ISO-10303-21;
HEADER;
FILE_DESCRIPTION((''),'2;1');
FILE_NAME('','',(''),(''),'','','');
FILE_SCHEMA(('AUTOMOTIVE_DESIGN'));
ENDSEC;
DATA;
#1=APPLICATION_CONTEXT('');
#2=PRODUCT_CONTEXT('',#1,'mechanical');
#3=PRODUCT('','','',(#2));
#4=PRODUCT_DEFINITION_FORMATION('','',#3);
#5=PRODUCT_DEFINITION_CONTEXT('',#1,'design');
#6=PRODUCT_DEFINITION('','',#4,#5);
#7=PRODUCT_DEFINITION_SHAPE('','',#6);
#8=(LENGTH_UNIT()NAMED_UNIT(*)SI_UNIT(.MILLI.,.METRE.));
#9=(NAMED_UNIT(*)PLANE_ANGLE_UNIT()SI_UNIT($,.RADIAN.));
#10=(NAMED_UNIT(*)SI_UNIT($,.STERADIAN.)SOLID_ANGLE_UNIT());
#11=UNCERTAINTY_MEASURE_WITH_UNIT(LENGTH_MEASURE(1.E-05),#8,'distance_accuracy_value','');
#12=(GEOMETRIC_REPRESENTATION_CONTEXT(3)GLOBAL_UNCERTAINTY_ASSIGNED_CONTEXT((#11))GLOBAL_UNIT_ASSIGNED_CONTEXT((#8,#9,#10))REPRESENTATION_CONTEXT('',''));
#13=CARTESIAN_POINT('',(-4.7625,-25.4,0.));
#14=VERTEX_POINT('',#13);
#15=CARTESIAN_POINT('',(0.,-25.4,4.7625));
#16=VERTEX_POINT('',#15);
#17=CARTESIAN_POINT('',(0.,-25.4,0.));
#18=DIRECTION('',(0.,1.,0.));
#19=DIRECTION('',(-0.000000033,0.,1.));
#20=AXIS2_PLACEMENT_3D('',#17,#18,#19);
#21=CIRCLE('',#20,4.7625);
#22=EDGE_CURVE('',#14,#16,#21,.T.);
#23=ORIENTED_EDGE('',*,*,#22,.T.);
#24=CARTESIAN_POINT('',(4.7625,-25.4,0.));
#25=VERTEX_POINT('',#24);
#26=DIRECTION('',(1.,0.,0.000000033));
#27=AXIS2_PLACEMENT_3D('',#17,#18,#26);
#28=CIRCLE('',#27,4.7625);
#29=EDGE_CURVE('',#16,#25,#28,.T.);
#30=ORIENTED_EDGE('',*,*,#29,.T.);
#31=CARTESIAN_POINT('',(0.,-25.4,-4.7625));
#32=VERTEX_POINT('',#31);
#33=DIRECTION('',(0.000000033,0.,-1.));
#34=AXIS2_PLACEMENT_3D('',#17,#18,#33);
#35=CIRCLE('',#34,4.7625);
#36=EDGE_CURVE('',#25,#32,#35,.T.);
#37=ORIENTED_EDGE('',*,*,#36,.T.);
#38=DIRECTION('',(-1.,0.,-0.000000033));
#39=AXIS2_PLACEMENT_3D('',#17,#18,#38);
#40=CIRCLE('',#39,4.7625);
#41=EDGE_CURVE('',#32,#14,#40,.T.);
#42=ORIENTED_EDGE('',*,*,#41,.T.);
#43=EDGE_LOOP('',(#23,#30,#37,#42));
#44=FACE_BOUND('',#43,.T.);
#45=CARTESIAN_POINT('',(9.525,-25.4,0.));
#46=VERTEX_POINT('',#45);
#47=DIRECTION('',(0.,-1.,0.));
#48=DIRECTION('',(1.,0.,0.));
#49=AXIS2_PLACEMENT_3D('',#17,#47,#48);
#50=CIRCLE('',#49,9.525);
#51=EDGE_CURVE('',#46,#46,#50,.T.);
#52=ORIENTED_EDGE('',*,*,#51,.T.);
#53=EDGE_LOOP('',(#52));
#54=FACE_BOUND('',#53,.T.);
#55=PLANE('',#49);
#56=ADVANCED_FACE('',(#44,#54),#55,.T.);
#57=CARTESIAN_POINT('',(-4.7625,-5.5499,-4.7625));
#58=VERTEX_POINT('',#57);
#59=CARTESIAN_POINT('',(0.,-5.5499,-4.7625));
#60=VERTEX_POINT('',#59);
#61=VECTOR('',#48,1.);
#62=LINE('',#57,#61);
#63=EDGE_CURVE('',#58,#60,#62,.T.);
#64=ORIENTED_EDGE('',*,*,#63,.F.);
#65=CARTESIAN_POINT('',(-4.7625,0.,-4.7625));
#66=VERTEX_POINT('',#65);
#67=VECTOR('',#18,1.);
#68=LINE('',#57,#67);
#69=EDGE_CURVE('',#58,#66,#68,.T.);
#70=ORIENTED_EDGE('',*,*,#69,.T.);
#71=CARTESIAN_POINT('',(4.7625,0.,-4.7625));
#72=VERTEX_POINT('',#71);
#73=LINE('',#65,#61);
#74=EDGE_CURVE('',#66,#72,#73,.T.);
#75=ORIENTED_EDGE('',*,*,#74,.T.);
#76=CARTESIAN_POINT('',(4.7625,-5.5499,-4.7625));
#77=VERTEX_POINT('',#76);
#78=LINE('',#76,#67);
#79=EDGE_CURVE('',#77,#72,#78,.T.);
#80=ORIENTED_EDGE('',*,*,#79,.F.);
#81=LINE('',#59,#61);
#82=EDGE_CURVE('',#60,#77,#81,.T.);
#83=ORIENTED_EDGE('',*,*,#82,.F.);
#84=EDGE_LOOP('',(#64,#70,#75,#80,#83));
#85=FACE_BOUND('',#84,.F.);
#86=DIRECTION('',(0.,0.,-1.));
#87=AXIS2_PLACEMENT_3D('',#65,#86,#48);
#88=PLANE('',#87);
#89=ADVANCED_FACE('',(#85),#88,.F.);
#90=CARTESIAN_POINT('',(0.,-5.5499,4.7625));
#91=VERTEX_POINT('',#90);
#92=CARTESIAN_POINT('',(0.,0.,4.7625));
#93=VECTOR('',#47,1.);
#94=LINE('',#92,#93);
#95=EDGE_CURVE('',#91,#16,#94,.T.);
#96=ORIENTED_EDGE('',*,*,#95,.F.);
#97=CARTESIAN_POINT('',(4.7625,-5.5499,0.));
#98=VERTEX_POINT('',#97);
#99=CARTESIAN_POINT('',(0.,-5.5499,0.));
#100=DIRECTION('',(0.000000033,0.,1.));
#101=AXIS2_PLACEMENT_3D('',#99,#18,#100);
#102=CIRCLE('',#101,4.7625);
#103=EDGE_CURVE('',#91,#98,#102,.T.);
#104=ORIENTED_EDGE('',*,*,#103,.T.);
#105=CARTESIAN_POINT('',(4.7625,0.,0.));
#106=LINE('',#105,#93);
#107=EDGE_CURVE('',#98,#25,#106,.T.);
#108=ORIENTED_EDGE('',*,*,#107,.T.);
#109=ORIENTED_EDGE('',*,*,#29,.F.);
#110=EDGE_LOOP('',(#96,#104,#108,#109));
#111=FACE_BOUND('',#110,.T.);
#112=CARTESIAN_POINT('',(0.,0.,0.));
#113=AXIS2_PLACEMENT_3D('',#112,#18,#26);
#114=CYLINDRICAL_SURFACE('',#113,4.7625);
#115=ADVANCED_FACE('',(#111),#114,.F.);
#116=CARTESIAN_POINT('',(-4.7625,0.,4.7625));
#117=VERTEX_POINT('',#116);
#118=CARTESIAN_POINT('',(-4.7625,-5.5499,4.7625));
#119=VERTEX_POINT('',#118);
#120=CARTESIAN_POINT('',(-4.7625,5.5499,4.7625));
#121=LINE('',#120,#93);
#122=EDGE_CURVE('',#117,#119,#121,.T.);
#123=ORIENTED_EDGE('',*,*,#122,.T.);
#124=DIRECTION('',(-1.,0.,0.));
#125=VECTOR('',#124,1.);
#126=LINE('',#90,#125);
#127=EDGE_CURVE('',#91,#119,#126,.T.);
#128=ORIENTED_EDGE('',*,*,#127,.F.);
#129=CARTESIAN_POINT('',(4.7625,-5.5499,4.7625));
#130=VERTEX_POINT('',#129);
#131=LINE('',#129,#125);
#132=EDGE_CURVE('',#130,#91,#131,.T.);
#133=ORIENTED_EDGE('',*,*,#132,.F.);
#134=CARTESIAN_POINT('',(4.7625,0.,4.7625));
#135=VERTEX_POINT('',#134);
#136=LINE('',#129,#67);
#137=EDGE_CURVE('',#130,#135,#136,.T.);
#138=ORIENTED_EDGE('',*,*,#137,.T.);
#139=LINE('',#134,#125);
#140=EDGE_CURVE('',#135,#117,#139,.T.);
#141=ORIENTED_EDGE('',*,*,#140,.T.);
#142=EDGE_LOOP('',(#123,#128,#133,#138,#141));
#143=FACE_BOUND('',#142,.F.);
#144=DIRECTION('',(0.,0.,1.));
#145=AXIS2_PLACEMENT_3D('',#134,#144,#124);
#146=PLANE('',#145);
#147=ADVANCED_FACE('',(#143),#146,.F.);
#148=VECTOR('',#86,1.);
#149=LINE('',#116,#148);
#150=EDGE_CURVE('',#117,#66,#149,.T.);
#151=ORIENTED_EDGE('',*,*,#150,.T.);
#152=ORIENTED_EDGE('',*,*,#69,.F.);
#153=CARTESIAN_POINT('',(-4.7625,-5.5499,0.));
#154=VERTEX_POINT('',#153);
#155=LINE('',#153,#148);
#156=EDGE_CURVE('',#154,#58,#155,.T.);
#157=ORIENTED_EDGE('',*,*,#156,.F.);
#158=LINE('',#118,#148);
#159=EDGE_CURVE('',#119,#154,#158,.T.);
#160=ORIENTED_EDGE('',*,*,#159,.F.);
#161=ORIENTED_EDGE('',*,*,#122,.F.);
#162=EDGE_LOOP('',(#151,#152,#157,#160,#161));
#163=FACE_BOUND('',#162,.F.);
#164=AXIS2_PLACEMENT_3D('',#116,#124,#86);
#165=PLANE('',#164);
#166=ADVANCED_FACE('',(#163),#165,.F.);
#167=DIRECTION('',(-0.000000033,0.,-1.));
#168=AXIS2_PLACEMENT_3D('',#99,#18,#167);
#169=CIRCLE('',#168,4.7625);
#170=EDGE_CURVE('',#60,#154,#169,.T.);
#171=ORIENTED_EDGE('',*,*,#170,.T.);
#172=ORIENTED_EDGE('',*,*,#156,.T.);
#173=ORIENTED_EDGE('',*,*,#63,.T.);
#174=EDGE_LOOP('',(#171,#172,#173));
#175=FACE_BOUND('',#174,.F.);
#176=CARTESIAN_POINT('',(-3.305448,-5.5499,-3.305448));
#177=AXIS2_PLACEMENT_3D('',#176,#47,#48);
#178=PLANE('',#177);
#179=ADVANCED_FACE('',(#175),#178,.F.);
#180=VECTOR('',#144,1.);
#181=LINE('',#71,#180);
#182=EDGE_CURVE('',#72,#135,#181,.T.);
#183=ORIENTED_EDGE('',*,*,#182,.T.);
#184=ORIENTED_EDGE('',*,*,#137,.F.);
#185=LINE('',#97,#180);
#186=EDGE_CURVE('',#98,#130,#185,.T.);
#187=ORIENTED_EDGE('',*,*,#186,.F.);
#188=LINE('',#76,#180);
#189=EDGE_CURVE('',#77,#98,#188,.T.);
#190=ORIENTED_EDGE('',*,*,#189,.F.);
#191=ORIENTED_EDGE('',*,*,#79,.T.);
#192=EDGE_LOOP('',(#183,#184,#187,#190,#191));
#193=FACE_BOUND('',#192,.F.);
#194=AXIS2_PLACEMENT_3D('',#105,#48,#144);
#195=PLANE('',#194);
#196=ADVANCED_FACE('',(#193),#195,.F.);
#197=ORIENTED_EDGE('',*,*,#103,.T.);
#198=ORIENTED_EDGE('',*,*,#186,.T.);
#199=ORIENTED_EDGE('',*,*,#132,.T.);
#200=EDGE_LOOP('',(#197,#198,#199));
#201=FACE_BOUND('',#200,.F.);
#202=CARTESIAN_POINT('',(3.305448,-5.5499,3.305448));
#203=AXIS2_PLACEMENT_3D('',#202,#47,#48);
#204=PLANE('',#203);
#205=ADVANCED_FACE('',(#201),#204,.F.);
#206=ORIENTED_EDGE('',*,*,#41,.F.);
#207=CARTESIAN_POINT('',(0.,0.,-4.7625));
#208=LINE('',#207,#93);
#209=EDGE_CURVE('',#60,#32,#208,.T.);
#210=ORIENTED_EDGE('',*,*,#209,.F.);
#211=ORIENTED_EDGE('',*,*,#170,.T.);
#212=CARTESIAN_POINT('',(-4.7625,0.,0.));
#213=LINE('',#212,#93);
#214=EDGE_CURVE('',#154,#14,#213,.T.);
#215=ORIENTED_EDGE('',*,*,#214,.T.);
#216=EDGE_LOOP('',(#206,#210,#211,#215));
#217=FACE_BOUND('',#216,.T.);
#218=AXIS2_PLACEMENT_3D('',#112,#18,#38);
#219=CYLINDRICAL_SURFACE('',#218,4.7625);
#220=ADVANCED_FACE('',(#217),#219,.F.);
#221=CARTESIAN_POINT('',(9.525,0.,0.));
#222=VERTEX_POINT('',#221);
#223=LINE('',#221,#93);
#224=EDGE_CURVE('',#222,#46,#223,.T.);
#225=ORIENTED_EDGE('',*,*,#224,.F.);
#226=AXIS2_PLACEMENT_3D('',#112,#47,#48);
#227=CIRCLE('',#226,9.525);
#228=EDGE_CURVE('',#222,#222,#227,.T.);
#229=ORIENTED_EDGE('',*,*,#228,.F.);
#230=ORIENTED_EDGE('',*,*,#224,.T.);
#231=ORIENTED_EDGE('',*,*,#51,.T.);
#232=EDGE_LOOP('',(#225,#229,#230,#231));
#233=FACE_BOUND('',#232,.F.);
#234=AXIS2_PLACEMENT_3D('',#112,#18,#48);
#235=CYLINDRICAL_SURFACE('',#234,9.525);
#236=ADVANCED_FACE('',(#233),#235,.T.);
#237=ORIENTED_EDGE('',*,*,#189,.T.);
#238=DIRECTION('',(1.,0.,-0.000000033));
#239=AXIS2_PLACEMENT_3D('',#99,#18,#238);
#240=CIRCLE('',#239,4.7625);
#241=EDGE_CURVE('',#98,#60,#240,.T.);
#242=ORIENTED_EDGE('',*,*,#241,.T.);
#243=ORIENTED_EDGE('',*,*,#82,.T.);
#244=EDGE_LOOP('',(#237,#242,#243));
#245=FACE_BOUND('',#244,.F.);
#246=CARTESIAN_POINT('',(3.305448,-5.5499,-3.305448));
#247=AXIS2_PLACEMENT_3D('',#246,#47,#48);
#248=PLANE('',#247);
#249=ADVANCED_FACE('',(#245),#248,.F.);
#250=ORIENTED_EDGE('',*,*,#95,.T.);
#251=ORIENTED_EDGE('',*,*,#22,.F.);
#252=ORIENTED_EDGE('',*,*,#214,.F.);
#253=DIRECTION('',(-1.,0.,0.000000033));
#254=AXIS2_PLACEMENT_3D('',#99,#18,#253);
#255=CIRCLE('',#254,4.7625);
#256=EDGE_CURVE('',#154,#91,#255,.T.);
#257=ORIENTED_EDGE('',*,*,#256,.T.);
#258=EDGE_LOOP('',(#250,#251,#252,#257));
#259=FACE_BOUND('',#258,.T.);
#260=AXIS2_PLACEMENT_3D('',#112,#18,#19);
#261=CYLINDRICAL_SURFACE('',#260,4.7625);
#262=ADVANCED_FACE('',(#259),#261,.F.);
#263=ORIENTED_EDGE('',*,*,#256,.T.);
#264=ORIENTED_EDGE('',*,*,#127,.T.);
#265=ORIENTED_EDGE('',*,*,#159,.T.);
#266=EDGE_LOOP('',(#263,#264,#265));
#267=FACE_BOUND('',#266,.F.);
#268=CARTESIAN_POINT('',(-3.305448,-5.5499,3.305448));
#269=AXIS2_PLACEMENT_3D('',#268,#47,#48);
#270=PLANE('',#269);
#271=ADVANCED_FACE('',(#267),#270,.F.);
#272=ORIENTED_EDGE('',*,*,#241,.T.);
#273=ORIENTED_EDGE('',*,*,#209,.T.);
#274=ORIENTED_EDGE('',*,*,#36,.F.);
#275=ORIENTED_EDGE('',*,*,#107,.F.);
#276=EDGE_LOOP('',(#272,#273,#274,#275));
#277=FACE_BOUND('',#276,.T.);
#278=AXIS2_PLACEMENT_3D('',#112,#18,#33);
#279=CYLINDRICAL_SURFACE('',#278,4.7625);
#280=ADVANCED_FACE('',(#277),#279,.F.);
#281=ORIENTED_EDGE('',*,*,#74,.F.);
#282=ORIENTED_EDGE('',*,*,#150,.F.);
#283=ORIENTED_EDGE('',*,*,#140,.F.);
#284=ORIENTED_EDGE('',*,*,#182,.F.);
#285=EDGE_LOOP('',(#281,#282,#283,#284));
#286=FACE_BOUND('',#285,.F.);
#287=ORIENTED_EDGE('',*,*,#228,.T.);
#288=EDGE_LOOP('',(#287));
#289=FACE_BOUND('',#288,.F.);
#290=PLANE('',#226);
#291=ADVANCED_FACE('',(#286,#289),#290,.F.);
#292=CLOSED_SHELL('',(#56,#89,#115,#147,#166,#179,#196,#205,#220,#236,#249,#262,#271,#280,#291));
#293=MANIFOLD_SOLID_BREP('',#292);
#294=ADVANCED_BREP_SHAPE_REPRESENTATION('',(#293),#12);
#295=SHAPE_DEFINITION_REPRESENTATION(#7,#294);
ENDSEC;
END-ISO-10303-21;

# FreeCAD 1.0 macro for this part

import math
import FreeCAD as App
import Part
import Sketcher

V = App.Vector
Q = App.Units.Quantity

doc = App.newDocument("Part")
body = doc.addObject("PartDesign::Body", "Body")

# Sketch on XZ plane
sketch1 = body.newObject("Sketcher::SketchObject", "Sketch")
sketch1.AttachmentSupport = (doc.getObject("XZ_Plane"), [""])
sketch1.MapMode = "FlatFace"
sketch1.addGeometry(Part.Circle(V(0, 0, 0), V(0, 0, 1), 10), False)
sketch1.addConstraint([
    Sketcher.Constraint("Coincident", 0, 3, -1, 1),
    Sketcher.Constraint("Diameter", 0, Q("0.75 in")),
])
pad1 = body.newObject("PartDesign::Pad", "Pad")
pad1.Profile = sketch1
pad1.Length = Q("1 in")

# Sketch on XZ plane
sketch2 = body.newObject("Sketcher::SketchObject", "Sketch001")
sketch2.AttachmentSupport = (doc.getObject("XZ_Plane"), [""])
sketch2.MapMode = "FlatFace"
sketch2.addGeometry([
    Part.ArcOfCircle(Part.Circle(V(0, 0, 0), V(0, 0, 1), 4.8), math.radians(0), math.radians(90)),
    Part.ArcOfCircle(Part.Circle(V(0, 0, 0), V(0, 0, 1), 4.8), math.radians(90), math.radians(180)),
    Part.ArcOfCircle(Part.Circle(V(0, 0, 0), V(0, 0, 1), 4.8), math.radians(-180), math.radians(-90)),
    Part.ArcOfCircle(Part.Circle(V(0, 0, 0), V(0, 0, 1), 4.8), math.radians(-90), math.radians(0)),
], False)
sketch2.addConstraint([
    Sketcher.Constraint("Tangent", 0, 2, 1, 1),
    Sketcher.Constraint("Tangent", 1, 2, 2, 1),
    Sketcher.Constraint("Tangent", 2, 2, 3, 1),
    Sketcher.Constraint("Tangent", 3, 2, 0, 1),
    Sketcher.Constraint("Coincident", 0, 3, -1, 1),
    Sketcher.Constraint("Equal", 0, 1),
    Sketcher.Constraint("PointOnObject", 0, 2, -2),
    Sketcher.Constraint("PointOnObject", 1, 2, -1),
    Sketcher.Constraint("PointOnObject", 2, 2, -2),
    Sketcher.Constraint("PointOnObject", 3, 2, -1),
    Sketcher.Constraint("Radius", 0, Q("0.1875 in")),
])
pocket1 = body.newObject("PartDesign::Pocket", "Pocket")
pocket1.Profile = sketch2
pocket1.Type = "ThroughAll"
pocket1.Reversed = True

# Sketch on XZ plane
sketch3 = body.newObject("Sketcher::SketchObject", "Sketch002")
sketch3.AttachmentSupport = (doc.getObject("XZ_Plane"), [""])
sketch3.MapMode = "FlatFace"
sketch3.addGeometry([
    Part.LineSegment(V(0, 4.8, 0), V(-4.8, 4.8, 0)),  # 0
    Part.LineSegment(V(-4.8, 4.8, 0), V(-4.8, 0, 0)),  # 1
    Part.ArcOfCircle(Part.Circle(V(0, 0, 0), V(0, 0, 1), 4.8), math.radians(90), math.radians(180)),  # 2
    Part.LineSegment(V(4.8, 4.8, 0), V(0, 4.8, 0)),  # 3
    Part.ArcOfCircle(Part.Circle(V(0, 0, 0), V(0, 0, 1), 4.8), math.radians(0), math.radians(90)),  # 4
    Part.LineSegment(V(4.8, 0, 0), V(4.8, 4.8, 0)),  # 5
    Part.ArcOfCircle(Part.Circle(V(0, 0, 0), V(0, 0, 1), 4.8), math.radians(-180), math.radians(-90)),  # 6
    Part.LineSegment(V(-4.8, 0, 0), V(-4.8, -4.8, 0)),  # 7
    Part.LineSegment(V(-4.8, -4.8, 0), V(0, -4.8, 0)),  # 8
    Part.LineSegment(V(4.8, -4.8, 0), V(4.8, 0, 0)),  # 9
    Part.ArcOfCircle(Part.Circle(V(0, 0, 0), V(0, 0, 1), 4.8), math.radians(-90), math.radians(0)),  # 10
    Part.LineSegment(V(0, -4.8, 0), V(4.8, -4.8, 0)),  # 11
], False)
sketch3.addConstraint([
    Sketcher.Constraint("Coincident", 0, 2, 1, 1),
    Sketcher.Constraint("Tangent", 1, 2, 2, 2),
    Sketcher.Constraint("Tangent", 2, 1, 0, 1),
    Sketcher.Constraint("Tangent", 3, 2, 4, 2),
    Sketcher.Constraint("Tangent", 4, 1, 5, 1),
    Sketcher.Constraint("Coincident", 5, 2, 3, 1),
    Sketcher.Constraint("Tangent", 6, 1, 7, 1),
    Sketcher.Constraint("Coincident", 7, 2, 8, 1),
    Sketcher.Constraint("Tangent", 8, 2, 6, 2),
    Sketcher.Constraint("Tangent", 9, 2, 10, 2),
    Sketcher.Constraint("Tangent", 10, 1, 11, 1),
    Sketcher.Constraint("Coincident", 11, 2, 9, 1),
    Sketcher.Constraint("Horizontal", 0),
    Sketcher.Constraint("Vertical", 1),
    Sketcher.Constraint("Horizontal", 3),
    Sketcher.Constraint("Vertical", 5),
    Sketcher.Constraint("Vertical", 7),
    Sketcher.Constraint("Horizontal", 8),
    Sketcher.Constraint("Vertical", 9),
    Sketcher.Constraint("Horizontal", 11),
    Sketcher.Constraint("Coincident", 2, 3, -1, 1),
    Sketcher.Constraint("Coincident", 4, 3, -1, 1),
    Sketcher.Constraint("Coincident", 6, 3, -1, 1),
    Sketcher.Constraint("Coincident", 10, 3, -1, 1),
    Sketcher.Constraint("Equal", 2, 4),
    Sketcher.Constraint("Equal", 4, 6),
    Sketcher.Constraint("Equal", 6, 10),
    Sketcher.Constraint("Radius", 2, Q("0.1875 in")),
])
pocket2 = body.newObject("PartDesign::Pocket", "Pocket001")
pocket2.Profile = sketch3
pocket2.Length = Q("0.437 in")
pocket2.Midplane = True

doc.recompute()
